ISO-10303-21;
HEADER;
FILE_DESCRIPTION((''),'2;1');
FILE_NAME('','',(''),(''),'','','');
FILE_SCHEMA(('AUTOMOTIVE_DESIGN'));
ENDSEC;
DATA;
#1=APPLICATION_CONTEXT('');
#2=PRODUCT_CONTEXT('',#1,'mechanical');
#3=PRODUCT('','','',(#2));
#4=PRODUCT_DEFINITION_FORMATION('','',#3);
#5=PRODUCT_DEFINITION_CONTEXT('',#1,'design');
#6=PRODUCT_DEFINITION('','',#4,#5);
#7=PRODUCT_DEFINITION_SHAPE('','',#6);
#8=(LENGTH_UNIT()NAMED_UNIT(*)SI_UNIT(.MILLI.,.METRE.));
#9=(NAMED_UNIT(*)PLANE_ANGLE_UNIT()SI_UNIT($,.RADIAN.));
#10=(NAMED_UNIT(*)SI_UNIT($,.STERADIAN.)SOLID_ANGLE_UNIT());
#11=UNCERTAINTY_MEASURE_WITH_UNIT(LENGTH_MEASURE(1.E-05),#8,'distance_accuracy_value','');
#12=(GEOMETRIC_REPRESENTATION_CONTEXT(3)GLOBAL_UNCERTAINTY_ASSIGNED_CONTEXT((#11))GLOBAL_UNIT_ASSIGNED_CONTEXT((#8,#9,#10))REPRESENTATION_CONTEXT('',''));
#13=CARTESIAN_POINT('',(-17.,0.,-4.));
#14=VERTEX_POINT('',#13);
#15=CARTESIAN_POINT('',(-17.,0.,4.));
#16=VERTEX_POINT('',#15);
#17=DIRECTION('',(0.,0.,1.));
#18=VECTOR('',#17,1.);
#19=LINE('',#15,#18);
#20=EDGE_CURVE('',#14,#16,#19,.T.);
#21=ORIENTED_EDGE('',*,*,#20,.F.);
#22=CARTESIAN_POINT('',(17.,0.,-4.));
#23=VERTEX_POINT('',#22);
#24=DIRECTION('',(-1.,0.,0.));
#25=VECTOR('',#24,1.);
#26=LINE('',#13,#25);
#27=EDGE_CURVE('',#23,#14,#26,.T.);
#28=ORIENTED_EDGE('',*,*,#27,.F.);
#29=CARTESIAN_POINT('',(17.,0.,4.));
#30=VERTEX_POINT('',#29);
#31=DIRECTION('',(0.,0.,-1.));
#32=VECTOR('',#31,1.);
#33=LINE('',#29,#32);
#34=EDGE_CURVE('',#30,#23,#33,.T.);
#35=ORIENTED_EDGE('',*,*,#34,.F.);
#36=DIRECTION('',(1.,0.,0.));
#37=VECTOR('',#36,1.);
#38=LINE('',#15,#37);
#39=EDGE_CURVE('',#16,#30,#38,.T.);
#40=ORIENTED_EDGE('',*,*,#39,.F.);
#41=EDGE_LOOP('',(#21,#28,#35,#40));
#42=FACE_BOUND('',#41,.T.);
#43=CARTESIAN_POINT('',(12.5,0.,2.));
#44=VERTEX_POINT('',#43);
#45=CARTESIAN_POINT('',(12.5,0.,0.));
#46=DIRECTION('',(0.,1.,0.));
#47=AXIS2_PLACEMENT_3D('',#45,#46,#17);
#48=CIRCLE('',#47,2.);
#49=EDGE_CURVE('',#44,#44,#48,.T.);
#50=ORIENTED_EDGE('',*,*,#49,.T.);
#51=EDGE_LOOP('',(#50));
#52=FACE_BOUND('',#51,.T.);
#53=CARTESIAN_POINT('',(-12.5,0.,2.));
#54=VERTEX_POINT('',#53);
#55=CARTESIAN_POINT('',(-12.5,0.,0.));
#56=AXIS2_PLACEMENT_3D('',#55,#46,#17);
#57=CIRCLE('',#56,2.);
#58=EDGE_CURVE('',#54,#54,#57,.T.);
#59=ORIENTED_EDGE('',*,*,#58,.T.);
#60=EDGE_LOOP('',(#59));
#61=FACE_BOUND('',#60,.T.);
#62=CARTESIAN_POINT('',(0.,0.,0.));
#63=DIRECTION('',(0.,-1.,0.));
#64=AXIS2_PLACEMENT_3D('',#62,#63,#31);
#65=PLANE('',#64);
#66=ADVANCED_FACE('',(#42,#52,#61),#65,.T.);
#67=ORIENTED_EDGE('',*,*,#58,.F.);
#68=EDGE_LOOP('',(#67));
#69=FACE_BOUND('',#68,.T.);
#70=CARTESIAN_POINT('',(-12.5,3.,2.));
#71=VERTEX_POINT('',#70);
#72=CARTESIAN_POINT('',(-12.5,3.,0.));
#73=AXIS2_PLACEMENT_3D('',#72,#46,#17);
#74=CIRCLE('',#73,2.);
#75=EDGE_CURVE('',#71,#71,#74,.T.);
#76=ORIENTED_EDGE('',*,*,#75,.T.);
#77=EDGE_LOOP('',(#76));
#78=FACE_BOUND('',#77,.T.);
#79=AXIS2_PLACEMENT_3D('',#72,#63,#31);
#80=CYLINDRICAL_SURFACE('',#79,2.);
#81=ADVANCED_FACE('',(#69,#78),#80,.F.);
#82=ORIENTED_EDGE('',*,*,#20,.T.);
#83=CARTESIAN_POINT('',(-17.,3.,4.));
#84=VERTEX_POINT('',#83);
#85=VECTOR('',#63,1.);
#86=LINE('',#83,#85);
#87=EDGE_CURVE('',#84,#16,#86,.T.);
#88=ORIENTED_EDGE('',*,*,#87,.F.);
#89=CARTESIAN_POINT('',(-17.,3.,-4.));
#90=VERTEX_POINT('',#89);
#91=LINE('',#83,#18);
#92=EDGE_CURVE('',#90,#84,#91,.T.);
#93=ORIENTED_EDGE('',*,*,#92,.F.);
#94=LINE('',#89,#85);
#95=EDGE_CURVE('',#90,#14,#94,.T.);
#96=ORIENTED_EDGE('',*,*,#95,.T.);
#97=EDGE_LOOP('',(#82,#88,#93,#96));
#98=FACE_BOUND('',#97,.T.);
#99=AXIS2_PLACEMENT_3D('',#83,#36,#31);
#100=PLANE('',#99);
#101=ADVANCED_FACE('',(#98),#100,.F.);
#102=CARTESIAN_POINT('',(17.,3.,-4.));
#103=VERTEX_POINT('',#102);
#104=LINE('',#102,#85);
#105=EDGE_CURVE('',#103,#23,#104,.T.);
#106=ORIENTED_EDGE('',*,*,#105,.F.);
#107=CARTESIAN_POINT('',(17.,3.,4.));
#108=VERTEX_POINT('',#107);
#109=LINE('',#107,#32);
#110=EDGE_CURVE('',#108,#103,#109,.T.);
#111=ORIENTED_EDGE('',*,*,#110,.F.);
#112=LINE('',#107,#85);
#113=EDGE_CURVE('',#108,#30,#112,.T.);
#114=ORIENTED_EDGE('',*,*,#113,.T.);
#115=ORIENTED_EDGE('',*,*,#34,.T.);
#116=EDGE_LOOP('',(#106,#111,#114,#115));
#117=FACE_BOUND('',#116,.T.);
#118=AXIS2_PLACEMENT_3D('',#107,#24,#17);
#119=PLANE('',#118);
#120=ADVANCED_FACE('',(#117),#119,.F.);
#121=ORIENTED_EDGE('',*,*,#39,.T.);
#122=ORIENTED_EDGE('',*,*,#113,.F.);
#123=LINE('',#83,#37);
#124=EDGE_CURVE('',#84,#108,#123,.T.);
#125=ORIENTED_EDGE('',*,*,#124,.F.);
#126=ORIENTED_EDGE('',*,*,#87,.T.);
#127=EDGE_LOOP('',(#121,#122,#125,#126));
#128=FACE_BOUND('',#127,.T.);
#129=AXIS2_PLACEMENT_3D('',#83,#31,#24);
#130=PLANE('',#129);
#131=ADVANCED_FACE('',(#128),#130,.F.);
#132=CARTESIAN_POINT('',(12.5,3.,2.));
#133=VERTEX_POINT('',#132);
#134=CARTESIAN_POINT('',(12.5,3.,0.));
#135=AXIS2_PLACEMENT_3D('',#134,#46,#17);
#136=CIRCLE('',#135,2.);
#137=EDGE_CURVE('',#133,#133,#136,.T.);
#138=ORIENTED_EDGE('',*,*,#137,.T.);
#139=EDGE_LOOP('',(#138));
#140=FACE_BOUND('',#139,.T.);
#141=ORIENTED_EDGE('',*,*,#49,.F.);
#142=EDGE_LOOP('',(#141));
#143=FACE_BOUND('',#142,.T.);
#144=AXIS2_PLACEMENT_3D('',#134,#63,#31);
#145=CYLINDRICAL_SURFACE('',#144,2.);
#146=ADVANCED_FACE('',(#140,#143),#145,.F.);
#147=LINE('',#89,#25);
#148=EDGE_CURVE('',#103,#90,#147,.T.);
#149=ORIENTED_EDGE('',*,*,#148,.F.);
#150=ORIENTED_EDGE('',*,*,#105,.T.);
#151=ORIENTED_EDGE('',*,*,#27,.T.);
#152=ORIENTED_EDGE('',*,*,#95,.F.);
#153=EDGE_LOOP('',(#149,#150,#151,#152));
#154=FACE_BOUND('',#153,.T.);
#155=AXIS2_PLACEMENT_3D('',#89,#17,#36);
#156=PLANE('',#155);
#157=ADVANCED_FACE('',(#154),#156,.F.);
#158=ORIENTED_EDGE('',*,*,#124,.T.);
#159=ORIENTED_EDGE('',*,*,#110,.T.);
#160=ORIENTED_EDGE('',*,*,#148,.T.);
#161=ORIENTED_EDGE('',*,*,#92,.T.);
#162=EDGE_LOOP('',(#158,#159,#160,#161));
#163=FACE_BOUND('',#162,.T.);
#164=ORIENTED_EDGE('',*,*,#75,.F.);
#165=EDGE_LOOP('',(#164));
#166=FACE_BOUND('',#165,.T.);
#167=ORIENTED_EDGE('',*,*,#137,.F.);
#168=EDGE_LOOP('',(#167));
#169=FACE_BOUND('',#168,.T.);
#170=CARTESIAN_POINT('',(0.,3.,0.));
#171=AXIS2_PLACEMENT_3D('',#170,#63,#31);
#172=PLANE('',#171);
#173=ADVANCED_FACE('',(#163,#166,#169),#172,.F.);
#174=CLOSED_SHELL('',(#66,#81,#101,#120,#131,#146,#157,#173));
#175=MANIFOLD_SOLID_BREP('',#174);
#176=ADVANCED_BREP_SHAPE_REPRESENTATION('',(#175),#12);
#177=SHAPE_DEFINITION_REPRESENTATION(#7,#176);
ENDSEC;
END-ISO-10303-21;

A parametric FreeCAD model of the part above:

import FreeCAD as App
import Part
import Sketcher


def add_polygon(sketch, points):
    """Adds a closed chain of lines whose ends are joined by coincident constraints."""
    first, n = sketch.GeometryCount, len(points)
    for a, b in zip(points, points[1:] + points[:1]):
        sketch.addGeometry(Part.LineSegment(App.Vector(*a, 0), App.Vector(*b, 0)), False)
    for i in range(n):
        sketch.addConstraint(Sketcher.Constraint("Coincident", first + i, 2, first + (i + 1) % n, 1))

doc = App.newDocument("Part")
body = doc.addObject("PartDesign::Body", "Body")

# Sketch on XZ plane
sketch1 = doc.addObject("Sketcher::SketchObject", "Sketch")
body.addObject(sketch1)
sketch1.AttachmentSupport = (doc.XZ_Plane, [""])
sketch1.MapMode = "FlatFace"
add_polygon(sketch1, [(-17, -4), (-17, 4), (17, 4), (17, -4)])  # lines 0-3
sketch1.addGeometry(Part.Circle(App.Vector(-12.5, 0, 0), App.Vector(0, 0, 1), 2), False)  # 4
sketch1.addGeometry(Part.Circle(App.Vector(12.5, 0, 0), App.Vector(0, 0, 1), 2), False)  # 5
sketch1.addConstraint([
    Sketcher.Constraint("Vertical", 0),
    Sketcher.Constraint("Horizontal", 1),
    Sketcher.Constraint("Vertical", 2),
    Sketcher.Constraint("Horizontal", 3),
    Sketcher.Constraint("Equal", 4, 5),
    Sketcher.Constraint("Symmetric", 4, 3, 5, 3, -1, 1),
    Sketcher.Constraint("Symmetric", 0, 2, 2, 2, -1, 1),
    Sketcher.Constraint("PointOnObject", 4, 3, -1),
    Sketcher.Constraint("Diameter", 4, 4.0),
    Sketcher.Constraint("DistanceX", 1, 1, 1, 2, 34.0),
    Sketcher.Constraint("DistanceY", 0, 1, 0, 2, 8.0),
    Sketcher.Constraint("DistanceX", 4, 3, 5, 3, 25.0),
])
pad1 = doc.addObject("PartDesign::Pad", "Pad")
body.addObject(pad1)
pad1.Profile = sketch1
pad1.Length = 3
pad1.Reversed = True

doc.recompute()
